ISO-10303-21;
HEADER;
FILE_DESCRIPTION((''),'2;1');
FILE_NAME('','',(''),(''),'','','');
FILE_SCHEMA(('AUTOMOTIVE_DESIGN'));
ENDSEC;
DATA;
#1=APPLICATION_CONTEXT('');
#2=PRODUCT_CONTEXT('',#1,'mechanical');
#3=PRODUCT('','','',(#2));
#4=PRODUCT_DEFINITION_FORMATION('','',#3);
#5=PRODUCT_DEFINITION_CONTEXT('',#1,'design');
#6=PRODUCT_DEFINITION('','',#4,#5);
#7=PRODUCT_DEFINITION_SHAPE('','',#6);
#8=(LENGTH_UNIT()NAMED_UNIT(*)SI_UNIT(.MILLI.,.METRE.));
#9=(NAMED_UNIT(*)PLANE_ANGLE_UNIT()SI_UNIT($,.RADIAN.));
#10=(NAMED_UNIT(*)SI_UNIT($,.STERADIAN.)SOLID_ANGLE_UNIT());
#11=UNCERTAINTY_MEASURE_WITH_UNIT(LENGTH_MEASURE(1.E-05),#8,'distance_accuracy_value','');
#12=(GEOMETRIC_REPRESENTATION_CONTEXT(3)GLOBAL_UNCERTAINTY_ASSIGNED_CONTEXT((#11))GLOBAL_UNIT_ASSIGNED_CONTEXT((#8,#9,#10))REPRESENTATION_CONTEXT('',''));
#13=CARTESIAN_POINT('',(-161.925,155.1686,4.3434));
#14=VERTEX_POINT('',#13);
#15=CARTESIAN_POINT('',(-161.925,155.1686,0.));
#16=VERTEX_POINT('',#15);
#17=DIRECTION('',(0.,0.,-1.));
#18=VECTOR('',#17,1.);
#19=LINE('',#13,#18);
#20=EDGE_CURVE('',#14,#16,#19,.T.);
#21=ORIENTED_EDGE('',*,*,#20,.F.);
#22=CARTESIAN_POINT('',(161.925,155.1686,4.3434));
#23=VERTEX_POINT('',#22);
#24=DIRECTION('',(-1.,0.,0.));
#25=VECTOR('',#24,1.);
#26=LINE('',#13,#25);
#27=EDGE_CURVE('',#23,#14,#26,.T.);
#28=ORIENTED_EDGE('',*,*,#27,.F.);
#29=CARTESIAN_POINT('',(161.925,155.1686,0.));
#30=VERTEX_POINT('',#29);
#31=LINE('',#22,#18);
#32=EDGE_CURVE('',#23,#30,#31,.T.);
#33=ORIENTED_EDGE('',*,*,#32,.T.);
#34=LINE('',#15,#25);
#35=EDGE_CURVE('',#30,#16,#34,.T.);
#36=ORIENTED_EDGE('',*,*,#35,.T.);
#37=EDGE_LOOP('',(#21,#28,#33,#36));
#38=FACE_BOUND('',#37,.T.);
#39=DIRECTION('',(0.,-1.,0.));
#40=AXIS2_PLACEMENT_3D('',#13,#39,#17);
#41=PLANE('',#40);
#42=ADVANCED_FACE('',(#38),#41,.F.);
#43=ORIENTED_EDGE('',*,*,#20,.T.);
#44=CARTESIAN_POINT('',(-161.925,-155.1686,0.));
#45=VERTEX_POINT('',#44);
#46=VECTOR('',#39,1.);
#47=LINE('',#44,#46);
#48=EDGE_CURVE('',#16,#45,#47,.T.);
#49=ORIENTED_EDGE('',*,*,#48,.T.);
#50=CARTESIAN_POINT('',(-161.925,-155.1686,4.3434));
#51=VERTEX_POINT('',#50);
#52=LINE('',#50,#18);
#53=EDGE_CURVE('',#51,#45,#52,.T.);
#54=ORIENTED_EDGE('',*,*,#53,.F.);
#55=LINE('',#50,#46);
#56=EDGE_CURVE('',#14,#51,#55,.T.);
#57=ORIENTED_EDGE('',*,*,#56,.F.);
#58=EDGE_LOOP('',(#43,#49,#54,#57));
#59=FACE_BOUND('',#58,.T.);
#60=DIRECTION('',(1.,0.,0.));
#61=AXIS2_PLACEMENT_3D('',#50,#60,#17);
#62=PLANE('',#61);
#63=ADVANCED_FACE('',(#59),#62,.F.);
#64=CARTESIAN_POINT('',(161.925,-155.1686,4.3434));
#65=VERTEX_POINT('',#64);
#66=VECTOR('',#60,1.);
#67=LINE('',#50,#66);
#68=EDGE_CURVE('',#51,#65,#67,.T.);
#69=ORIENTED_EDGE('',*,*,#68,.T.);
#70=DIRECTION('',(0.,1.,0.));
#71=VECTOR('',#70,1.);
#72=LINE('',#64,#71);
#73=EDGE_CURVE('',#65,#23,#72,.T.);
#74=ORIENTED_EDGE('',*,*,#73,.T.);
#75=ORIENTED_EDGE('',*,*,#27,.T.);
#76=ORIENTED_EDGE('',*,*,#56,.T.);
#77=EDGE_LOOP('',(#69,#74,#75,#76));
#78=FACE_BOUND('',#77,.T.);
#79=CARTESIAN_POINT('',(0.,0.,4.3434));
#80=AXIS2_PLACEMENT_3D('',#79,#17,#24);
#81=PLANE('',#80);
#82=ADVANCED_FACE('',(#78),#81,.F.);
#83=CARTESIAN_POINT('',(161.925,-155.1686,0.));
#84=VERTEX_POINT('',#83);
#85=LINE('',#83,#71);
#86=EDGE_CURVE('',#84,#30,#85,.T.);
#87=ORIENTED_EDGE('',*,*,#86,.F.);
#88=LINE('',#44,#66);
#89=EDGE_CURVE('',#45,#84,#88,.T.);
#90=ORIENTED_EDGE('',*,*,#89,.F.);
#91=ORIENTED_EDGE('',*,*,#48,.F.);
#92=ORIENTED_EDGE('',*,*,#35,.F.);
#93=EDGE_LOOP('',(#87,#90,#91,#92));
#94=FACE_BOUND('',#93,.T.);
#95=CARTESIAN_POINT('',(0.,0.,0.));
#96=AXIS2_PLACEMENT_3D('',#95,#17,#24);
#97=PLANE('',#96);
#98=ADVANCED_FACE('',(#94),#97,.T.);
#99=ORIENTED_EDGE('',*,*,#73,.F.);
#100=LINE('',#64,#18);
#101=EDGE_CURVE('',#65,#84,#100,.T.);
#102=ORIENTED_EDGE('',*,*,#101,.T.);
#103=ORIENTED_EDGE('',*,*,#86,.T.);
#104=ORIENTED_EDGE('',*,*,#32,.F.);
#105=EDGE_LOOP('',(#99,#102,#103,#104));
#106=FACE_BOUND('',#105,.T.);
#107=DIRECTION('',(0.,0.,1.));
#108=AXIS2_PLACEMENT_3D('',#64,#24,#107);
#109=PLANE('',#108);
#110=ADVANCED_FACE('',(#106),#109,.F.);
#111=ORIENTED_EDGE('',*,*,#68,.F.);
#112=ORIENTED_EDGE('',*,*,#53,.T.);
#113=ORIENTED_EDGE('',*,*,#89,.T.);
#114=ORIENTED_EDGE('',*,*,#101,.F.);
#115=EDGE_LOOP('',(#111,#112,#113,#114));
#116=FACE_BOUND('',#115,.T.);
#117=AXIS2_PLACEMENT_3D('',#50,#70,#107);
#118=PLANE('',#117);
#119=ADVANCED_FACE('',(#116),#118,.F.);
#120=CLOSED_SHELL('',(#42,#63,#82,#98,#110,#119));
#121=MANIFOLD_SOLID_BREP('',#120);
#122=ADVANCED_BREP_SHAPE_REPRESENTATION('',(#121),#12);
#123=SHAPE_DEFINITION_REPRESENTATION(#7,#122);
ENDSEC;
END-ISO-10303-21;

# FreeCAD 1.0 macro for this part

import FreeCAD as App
import Part
import Sketcher
from FreeCAD import Vector
Q = App.Units.Quantity


def add_polygon(sketch, points):
    """Adds a closed chain of lines whose ends are joined by coincident constraints."""
    first, n = sketch.GeometryCount, len(points)
    for a, b in zip(points, points[1:] + points[:1]):
        sketch.addGeometry(Part.LineSegment(App.Vector(*a, 0), App.Vector(*b, 0)), False)
    for i in range(n):
        sketch.addConstraint(Sketcher.Constraint("Coincident", first + i, 2, first + (i + 1) % n, 1))

doc = App.newDocument("Part")
body = doc.addObject("PartDesign::Body", "Body")

# Sketch on XY plane
sketch1 = body.newObject("Sketcher::SketchObject", "Sketch")
sketch1.AttachmentSupport = (doc.getObject("XY_Plane"), [""])
sketch1.MapMode = "FlatFace"
add_polygon(sketch1, [(-161.925, 155.1686), (-161.925, -155.1686), (161.925, -155.1686), (161.925, 155.1686)])  # lines 0-3
sketch1.addConstraint(Sketcher.Constraint("Vertical", 0))
sketch1.addConstraint(Sketcher.Constraint("Horizontal", 1))
sketch1.addConstraint(Sketcher.Constraint("Vertical", 2))
sketch1.addConstraint(Sketcher.Constraint("Horizontal", 3))
sketch1.addConstraint(Sketcher.Constraint("Symmetric", 0, 2, 2, 2, -1, 1))
sketch1.addConstraint(Sketcher.Constraint("DistanceX", 1, 1, 1, 2, Q("12.75 in")))
sketch1.addConstraint(Sketcher.Constraint("DistanceY", 0, 2, 0, 1, Q("12.218 in")))
pad1 = body.newObject("PartDesign::Pad", "Pad")
pad1.Profile = sketch1
pad1.Length = Q("0.171 in")

doc.recompute()
